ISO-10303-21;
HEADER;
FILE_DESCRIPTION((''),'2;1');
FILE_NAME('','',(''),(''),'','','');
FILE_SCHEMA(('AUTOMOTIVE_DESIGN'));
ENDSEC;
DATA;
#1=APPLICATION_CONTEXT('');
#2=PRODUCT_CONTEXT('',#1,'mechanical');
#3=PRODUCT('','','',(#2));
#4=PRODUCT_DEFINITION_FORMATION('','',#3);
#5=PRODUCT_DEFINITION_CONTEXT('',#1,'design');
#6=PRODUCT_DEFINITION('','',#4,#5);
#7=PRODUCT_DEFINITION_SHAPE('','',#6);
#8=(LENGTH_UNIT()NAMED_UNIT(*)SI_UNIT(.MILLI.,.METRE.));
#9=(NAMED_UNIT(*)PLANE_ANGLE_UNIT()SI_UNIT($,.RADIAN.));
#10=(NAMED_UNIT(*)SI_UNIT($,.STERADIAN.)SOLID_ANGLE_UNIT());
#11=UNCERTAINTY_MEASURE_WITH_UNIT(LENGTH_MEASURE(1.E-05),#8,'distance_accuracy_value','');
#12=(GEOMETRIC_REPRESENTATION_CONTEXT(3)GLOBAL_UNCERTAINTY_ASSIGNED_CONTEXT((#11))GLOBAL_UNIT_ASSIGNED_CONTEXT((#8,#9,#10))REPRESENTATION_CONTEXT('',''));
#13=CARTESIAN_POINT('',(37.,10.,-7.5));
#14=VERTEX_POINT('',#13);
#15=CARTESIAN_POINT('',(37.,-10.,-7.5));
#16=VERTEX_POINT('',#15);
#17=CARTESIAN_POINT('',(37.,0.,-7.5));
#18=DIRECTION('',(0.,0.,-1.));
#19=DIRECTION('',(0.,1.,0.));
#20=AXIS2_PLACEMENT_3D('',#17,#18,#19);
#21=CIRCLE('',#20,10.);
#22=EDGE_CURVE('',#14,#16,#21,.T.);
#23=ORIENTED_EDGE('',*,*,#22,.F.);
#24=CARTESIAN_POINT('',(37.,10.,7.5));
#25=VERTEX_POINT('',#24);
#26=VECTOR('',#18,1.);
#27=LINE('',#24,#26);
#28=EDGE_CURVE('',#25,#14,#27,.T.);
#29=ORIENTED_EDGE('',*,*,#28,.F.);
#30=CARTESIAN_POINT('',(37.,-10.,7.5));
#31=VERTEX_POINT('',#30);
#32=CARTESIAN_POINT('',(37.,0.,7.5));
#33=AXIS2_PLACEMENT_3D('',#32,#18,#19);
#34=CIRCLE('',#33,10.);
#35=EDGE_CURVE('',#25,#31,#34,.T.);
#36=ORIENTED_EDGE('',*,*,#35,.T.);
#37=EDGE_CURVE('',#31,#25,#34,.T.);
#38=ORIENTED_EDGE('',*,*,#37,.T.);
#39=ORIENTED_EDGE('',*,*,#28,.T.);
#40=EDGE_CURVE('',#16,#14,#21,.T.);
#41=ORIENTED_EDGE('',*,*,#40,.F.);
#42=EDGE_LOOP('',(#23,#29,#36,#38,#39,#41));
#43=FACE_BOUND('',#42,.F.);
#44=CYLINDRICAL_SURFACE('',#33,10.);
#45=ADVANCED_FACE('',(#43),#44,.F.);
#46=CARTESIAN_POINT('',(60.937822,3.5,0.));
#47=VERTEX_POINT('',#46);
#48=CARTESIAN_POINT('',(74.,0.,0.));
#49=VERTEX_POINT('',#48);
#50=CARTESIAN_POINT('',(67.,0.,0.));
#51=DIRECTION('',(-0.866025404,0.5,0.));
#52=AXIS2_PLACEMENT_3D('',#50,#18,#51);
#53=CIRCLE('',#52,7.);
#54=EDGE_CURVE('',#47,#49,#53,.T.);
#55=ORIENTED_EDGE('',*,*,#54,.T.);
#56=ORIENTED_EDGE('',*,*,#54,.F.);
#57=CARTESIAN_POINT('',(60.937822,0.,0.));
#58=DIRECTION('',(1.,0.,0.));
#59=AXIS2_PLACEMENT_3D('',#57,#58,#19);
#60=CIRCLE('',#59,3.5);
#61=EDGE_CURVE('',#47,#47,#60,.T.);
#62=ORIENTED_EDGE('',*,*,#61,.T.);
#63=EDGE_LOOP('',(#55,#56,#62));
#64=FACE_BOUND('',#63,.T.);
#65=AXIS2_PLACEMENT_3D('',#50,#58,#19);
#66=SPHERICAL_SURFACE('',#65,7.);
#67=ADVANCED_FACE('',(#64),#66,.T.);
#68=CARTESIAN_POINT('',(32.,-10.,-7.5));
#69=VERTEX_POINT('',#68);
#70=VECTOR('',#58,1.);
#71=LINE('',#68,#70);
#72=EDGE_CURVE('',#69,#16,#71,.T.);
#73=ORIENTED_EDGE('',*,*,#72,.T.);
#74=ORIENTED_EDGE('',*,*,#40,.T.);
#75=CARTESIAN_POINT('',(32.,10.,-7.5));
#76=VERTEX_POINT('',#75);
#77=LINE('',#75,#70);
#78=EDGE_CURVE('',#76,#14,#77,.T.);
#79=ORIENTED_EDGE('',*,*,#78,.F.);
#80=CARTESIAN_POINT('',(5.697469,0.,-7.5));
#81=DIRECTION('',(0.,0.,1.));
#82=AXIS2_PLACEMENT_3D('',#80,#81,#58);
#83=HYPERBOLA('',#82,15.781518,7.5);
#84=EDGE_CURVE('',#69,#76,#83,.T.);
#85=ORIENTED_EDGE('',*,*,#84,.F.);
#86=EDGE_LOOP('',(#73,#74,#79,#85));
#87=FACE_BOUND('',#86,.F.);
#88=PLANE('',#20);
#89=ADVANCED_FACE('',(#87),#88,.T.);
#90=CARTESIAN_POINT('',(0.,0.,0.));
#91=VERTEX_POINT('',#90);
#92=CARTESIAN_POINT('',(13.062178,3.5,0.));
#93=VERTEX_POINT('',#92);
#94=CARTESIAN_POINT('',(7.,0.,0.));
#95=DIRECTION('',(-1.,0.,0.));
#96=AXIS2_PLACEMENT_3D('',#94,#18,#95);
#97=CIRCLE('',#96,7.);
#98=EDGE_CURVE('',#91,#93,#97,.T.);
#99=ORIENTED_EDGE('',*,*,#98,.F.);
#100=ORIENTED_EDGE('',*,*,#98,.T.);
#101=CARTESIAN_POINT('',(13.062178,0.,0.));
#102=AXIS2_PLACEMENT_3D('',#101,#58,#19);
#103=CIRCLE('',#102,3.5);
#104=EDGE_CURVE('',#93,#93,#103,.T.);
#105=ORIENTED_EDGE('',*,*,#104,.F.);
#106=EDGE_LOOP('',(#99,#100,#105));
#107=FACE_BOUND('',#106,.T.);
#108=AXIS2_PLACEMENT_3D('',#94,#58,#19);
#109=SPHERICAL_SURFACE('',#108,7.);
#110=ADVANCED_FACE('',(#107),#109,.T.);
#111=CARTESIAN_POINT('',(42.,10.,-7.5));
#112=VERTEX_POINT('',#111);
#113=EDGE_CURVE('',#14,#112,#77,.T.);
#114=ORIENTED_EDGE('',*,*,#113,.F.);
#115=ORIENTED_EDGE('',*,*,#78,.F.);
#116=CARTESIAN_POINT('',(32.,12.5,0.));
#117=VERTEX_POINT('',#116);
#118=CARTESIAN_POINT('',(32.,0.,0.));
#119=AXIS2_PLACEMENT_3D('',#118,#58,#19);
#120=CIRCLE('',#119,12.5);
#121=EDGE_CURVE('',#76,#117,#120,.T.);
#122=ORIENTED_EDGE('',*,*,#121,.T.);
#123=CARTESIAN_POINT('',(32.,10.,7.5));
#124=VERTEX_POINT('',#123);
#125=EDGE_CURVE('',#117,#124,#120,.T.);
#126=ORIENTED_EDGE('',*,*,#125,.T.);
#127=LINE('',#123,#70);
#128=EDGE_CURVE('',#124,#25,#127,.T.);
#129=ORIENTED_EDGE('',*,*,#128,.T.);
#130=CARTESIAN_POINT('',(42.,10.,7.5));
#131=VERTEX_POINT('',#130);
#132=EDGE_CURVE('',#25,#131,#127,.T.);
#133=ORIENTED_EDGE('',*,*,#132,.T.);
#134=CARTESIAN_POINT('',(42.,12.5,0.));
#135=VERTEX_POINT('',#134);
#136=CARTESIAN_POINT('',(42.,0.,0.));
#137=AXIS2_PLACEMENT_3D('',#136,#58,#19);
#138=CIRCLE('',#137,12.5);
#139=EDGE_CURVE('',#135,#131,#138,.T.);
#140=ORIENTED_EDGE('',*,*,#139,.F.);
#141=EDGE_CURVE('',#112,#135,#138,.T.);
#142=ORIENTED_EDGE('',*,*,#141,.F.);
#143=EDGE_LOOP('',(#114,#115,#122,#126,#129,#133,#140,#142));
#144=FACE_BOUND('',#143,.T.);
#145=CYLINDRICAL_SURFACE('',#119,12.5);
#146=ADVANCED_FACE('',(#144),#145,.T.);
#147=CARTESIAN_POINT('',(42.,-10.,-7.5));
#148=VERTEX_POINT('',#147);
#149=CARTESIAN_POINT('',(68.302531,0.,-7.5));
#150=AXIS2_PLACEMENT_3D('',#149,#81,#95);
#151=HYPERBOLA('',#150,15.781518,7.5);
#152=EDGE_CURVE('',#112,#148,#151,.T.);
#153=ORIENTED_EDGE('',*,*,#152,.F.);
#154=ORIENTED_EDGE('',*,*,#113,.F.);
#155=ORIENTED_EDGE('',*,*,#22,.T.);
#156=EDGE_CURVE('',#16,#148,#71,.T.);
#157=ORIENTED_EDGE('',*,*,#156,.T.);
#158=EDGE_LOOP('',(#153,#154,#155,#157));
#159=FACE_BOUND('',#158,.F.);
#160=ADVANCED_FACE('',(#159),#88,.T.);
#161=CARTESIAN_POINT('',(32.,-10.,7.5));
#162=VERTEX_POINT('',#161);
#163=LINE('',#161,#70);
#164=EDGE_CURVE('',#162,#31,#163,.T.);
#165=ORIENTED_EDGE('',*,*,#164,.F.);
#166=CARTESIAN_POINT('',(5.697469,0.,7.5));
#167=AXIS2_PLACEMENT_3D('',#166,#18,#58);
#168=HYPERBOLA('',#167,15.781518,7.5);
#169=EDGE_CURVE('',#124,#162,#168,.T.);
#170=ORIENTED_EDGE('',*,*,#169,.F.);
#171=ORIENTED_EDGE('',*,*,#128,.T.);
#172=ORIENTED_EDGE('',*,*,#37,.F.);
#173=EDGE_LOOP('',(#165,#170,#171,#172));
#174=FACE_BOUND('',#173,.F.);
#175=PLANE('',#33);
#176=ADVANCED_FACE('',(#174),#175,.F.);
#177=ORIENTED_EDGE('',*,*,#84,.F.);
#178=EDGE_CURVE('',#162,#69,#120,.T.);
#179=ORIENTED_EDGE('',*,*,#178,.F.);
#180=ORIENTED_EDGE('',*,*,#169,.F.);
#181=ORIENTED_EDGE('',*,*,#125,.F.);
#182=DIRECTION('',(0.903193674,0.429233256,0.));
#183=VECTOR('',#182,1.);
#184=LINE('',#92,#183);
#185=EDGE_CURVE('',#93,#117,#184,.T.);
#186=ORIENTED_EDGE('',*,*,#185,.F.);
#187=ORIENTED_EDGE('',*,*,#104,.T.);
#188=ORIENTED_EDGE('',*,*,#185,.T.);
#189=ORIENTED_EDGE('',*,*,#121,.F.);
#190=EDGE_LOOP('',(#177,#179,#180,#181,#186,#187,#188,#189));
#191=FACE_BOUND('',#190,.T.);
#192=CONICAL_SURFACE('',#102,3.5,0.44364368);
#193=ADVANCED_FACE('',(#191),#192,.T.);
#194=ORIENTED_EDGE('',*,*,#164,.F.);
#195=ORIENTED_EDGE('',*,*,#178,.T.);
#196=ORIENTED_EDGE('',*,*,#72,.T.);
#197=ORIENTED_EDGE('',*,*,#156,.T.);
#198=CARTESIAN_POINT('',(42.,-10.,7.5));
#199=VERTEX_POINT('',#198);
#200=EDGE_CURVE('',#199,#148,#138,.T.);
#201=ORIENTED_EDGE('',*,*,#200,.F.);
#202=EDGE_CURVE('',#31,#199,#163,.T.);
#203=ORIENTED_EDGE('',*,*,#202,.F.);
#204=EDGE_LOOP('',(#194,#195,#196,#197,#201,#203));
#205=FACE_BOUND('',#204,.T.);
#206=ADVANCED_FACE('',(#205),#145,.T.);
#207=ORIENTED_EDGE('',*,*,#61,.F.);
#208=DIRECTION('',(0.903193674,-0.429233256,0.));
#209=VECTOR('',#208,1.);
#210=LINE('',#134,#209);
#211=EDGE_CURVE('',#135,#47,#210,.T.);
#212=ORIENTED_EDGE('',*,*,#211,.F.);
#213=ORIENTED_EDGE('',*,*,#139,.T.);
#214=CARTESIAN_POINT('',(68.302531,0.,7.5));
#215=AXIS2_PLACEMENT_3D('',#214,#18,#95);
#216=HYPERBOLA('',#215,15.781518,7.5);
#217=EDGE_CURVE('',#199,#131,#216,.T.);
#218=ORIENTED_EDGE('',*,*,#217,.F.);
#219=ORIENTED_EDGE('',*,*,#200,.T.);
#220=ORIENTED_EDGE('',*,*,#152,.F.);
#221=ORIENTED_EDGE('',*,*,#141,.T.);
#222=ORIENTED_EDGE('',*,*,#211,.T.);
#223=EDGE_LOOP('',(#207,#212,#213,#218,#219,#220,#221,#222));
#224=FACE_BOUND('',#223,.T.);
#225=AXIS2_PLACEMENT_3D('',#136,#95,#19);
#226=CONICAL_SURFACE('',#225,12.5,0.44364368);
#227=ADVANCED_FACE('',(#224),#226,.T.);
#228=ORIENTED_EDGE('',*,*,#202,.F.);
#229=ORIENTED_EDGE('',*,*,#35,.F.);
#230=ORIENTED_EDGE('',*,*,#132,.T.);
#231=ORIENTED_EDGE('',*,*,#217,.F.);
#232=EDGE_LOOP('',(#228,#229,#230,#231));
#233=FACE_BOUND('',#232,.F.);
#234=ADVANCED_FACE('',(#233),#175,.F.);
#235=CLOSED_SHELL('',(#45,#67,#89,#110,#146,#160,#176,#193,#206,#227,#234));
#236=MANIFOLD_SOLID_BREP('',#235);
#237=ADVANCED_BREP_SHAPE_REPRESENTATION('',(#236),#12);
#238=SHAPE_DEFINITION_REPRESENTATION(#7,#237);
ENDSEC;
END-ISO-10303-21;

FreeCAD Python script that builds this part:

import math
import FreeCAD as App
import Part
import Sketcher

doc = App.newDocument("Part")
params = doc.addObject("Spreadsheet::Sheet", "Params")
for row, (alias, value) in enumerate([
    ("sketch1_radius", "7 mm"),
    ("sketch1_width", "74 mm"),
    ("sketch1_width2", "10 mm"),
    ("revolution_angle", "360 deg"),
    ("sketch2_width", "10 mm"),
    ("sketch2_width2", "20 mm"),
    ("sketch2_height", "15 mm"),
    ("sketch2_height2", "30 mm"),
    ("groove_angle", "360 deg"),
], start=1):
    params.set(f"A{row}", alias)
    params.set(f"B{row}", "=" + value)
    params.setAlias(f"B{row}", alias)

body = doc.addObject("PartDesign::Body", "Body")

# Sketch on XY plane
sketch1 = doc.addObject("Sketcher::SketchObject", "Sketch")
body.addObject(sketch1)
sketch1.AttachmentSupport = (doc.XY_Plane, [""])
sketch1.MapMode = "FlatFace"
sketch1.addGeometry(Part.LineSegment(App.Vector(32, 12.5, 0), App.Vector(13.062178, 3.5, 0)), False)
sketch1.addGeometry(Part.ArcOfCircle(Part.Circle(App.Vector(7, 0, 0), App.Vector(0, 0, 1), 7), math.radians(30), math.radians(180)), False)
sketch1.addGeometry(Part.LineSegment(App.Vector(0, 0, 0), App.Vector(74, 0, 0)), False)
sketch1.addGeometry(Part.ArcOfCircle(Part.Circle(App.Vector(67, 0, 0), App.Vector(0, 0, 1), 7), math.radians(0), math.radians(150)), False)
sketch1.addGeometry(Part.LineSegment(App.Vector(60.937822, 3.5, 0), App.Vector(42, 12.5, 0)), False)
sketch1.addGeometry(Part.LineSegment(App.Vector(42, 12.5, 0), App.Vector(32, 12.5, 0)), False)
sketch1.addConstraint(Sketcher.Constraint("Coincident", 0, 2, 1, 1))
sketch1.addConstraint(Sketcher.Constraint("Coincident", 1, 2, 2, 1))
sketch1.addConstraint(Sketcher.Constraint("Coincident", 2, 2, 3, 1))
sketch1.addConstraint(Sketcher.Constraint("Coincident", 3, 2, 4, 1))
sketch1.addConstraint(Sketcher.Constraint("Coincident", 4, 2, 5, 1))
sketch1.addConstraint(Sketcher.Constraint("Coincident", 5, 2, 0, 1))
sketch1.addConstraint(Sketcher.Constraint("Horizontal", 2))
sketch1.addConstraint(Sketcher.Constraint("Horizontal", 5))
sketch1.addConstraint(Sketcher.Constraint("Coincident", 1, 2, -1, 1))
sketch1.addConstraint(Sketcher.Constraint("Equal", 1, 3))
sketch1.addConstraint(Sketcher.Constraint("PointOnObject", 1, 3, -1))
sketch1.addConstraint(Sketcher.Constraint("PointOnObject", 3, 3, -1))
sketch1.addConstraint(Sketcher.Constraint("Horizontal", 0, 2, 3, 2))
sketch1.addConstraint(Sketcher.Constraint("Equal", 0, 4))
sketch1.addConstraint(Sketcher.Constraint("Radius", 1, 7.0))
sketch1.addConstraint(Sketcher.Constraint("DistanceX", 2, 1, 2, 2, 74.0))
sketch1.addConstraint(Sketcher.Constraint("DistanceX", 5, 2, 5, 1, 10.0))
sketch1.addConstraint(Sketcher.Constraint("DistanceY", 3, 2, 4, 2, 9.0))
sketch1.addConstraint(Sketcher.Constraint("DistanceY", -1, 1, 0, 2, 3.5))
sketch1.setExpression("Constraints[14]", "Params.sketch1_radius")
sketch1.setExpression("Constraints[15]", "Params.sketch1_width")
sketch1.setExpression("Constraints[16]", "Params.sketch1_width2")
revolution = doc.addObject("PartDesign::Revolution", "Revolution")
body.addObject(revolution)
revolution.Profile = sketch1
revolution.ReferenceAxis = (sketch1, ["H_Axis"])
revolution.setExpression("Angle", "Params.revolution_angle")

# Sketch on YZ plane
sketch2 = doc.addObject("Sketcher::SketchObject", "Sketch001")
body.addObject(sketch2)
sketch2.AttachmentSupport = (doc.YZ_Plane, [""])
sketch2.MapMode = "FlatFace"
sketch2.AttachmentOffset = App.Placement(App.Vector(0, 0, 37), App.Rotation())
sketch2.addGeometry(Part.LineSegment(App.Vector(10, -7.5, 0), App.Vector(10, 7.5, 0)), False)
sketch2.addGeometry(Part.LineSegment(App.Vector(10, 7.5, 0), App.Vector(20, 7.5, 0)), False)
sketch2.addGeometry(Part.LineSegment(App.Vector(20, 7.5, 0), App.Vector(20, 15, 0)), False)
sketch2.addGeometry(Part.LineSegment(App.Vector(20, 15, 0), App.Vector(0, 15, 0)), False)
sketch2.addGeometry(Part.LineSegment(App.Vector(0, 15, 0), App.Vector(0, -15, 0)), False)
sketch2.addGeometry(Part.LineSegment(App.Vector(0, -15, 0), App.Vector(20, -15, 0)), False)
sketch2.addGeometry(Part.LineSegment(App.Vector(20, -15, 0), App.Vector(20, -7.5, 0)), False)
sketch2.addGeometry(Part.LineSegment(App.Vector(20, -7.5, 0), App.Vector(10, -7.5, 0)), False)
sketch2.addConstraint(Sketcher.Constraint("Coincident", 0, 2, 1, 1))
sketch2.addConstraint(Sketcher.Constraint("Coincident", 1, 2, 2, 1))
sketch2.addConstraint(Sketcher.Constraint("Coincident", 2, 2, 3, 1))
sketch2.addConstraint(Sketcher.Constraint("Coincident", 3, 2, 4, 1))
sketch2.addConstraint(Sketcher.Constraint("Coincident", 4, 2, 5, 1))
sketch2.addConstraint(Sketcher.Constraint("Coincident", 5, 2, 6, 1))
sketch2.addConstraint(Sketcher.Constraint("Coincident", 6, 2, 7, 1))
sketch2.addConstraint(Sketcher.Constraint("Coincident", 7, 2, 0, 1))
sketch2.addConstraint(Sketcher.Constraint("Vertical", 0))
sketch2.addConstraint(Sketcher.Constraint("Horizontal", 1))
sketch2.addConstraint(Sketcher.Constraint("Vertical", 2))
sketch2.addConstraint(Sketcher.Constraint("Horizontal", 3))
sketch2.addConstraint(Sketcher.Constraint("Vertical", 4))
sketch2.addConstraint(Sketcher.Constraint("Horizontal", 5))
sketch2.addConstraint(Sketcher.Constraint("Vertical", 6))
sketch2.addConstraint(Sketcher.Constraint("Horizontal", 7))
sketch2.addConstraint(Sketcher.Constraint("Symmetric", 3, 2, 4, 2, -1, 1))
sketch2.addConstraint(Sketcher.Constraint("Symmetric", 1, 2, 6, 2, -1))
sketch2.addConstraint(Sketcher.Constraint("DistanceX", 1, 1, 1, 2, 10.0))
sketch2.addConstraint(Sketcher.Constraint("DistanceX", 3, 2, 3, 1, 20.0))
sketch2.addConstraint(Sketcher.Constraint("DistanceY", 0, 1, 0, 2, 15.0))
sketch2.addConstraint(Sketcher.Constraint("DistanceY", 4, 2, 4, 1, 30.0))
sketch2.setExpression("Constraints[18]", "Params.sketch2_width")
sketch2.setExpression("Constraints[19]", "Params.sketch2_width2")
sketch2.setExpression("Constraints[20]", "Params.sketch2_height")
sketch2.setExpression("Constraints[21]", "Params.sketch2_height2")
groove = doc.addObject("PartDesign::Groove", "Groove")
body.addObject(groove)
groove.Profile = sketch2
groove.ReferenceAxis = (sketch2, ["V_Axis"])
groove.setExpression("Angle", "Params.groove_angle")

doc.recompute()
